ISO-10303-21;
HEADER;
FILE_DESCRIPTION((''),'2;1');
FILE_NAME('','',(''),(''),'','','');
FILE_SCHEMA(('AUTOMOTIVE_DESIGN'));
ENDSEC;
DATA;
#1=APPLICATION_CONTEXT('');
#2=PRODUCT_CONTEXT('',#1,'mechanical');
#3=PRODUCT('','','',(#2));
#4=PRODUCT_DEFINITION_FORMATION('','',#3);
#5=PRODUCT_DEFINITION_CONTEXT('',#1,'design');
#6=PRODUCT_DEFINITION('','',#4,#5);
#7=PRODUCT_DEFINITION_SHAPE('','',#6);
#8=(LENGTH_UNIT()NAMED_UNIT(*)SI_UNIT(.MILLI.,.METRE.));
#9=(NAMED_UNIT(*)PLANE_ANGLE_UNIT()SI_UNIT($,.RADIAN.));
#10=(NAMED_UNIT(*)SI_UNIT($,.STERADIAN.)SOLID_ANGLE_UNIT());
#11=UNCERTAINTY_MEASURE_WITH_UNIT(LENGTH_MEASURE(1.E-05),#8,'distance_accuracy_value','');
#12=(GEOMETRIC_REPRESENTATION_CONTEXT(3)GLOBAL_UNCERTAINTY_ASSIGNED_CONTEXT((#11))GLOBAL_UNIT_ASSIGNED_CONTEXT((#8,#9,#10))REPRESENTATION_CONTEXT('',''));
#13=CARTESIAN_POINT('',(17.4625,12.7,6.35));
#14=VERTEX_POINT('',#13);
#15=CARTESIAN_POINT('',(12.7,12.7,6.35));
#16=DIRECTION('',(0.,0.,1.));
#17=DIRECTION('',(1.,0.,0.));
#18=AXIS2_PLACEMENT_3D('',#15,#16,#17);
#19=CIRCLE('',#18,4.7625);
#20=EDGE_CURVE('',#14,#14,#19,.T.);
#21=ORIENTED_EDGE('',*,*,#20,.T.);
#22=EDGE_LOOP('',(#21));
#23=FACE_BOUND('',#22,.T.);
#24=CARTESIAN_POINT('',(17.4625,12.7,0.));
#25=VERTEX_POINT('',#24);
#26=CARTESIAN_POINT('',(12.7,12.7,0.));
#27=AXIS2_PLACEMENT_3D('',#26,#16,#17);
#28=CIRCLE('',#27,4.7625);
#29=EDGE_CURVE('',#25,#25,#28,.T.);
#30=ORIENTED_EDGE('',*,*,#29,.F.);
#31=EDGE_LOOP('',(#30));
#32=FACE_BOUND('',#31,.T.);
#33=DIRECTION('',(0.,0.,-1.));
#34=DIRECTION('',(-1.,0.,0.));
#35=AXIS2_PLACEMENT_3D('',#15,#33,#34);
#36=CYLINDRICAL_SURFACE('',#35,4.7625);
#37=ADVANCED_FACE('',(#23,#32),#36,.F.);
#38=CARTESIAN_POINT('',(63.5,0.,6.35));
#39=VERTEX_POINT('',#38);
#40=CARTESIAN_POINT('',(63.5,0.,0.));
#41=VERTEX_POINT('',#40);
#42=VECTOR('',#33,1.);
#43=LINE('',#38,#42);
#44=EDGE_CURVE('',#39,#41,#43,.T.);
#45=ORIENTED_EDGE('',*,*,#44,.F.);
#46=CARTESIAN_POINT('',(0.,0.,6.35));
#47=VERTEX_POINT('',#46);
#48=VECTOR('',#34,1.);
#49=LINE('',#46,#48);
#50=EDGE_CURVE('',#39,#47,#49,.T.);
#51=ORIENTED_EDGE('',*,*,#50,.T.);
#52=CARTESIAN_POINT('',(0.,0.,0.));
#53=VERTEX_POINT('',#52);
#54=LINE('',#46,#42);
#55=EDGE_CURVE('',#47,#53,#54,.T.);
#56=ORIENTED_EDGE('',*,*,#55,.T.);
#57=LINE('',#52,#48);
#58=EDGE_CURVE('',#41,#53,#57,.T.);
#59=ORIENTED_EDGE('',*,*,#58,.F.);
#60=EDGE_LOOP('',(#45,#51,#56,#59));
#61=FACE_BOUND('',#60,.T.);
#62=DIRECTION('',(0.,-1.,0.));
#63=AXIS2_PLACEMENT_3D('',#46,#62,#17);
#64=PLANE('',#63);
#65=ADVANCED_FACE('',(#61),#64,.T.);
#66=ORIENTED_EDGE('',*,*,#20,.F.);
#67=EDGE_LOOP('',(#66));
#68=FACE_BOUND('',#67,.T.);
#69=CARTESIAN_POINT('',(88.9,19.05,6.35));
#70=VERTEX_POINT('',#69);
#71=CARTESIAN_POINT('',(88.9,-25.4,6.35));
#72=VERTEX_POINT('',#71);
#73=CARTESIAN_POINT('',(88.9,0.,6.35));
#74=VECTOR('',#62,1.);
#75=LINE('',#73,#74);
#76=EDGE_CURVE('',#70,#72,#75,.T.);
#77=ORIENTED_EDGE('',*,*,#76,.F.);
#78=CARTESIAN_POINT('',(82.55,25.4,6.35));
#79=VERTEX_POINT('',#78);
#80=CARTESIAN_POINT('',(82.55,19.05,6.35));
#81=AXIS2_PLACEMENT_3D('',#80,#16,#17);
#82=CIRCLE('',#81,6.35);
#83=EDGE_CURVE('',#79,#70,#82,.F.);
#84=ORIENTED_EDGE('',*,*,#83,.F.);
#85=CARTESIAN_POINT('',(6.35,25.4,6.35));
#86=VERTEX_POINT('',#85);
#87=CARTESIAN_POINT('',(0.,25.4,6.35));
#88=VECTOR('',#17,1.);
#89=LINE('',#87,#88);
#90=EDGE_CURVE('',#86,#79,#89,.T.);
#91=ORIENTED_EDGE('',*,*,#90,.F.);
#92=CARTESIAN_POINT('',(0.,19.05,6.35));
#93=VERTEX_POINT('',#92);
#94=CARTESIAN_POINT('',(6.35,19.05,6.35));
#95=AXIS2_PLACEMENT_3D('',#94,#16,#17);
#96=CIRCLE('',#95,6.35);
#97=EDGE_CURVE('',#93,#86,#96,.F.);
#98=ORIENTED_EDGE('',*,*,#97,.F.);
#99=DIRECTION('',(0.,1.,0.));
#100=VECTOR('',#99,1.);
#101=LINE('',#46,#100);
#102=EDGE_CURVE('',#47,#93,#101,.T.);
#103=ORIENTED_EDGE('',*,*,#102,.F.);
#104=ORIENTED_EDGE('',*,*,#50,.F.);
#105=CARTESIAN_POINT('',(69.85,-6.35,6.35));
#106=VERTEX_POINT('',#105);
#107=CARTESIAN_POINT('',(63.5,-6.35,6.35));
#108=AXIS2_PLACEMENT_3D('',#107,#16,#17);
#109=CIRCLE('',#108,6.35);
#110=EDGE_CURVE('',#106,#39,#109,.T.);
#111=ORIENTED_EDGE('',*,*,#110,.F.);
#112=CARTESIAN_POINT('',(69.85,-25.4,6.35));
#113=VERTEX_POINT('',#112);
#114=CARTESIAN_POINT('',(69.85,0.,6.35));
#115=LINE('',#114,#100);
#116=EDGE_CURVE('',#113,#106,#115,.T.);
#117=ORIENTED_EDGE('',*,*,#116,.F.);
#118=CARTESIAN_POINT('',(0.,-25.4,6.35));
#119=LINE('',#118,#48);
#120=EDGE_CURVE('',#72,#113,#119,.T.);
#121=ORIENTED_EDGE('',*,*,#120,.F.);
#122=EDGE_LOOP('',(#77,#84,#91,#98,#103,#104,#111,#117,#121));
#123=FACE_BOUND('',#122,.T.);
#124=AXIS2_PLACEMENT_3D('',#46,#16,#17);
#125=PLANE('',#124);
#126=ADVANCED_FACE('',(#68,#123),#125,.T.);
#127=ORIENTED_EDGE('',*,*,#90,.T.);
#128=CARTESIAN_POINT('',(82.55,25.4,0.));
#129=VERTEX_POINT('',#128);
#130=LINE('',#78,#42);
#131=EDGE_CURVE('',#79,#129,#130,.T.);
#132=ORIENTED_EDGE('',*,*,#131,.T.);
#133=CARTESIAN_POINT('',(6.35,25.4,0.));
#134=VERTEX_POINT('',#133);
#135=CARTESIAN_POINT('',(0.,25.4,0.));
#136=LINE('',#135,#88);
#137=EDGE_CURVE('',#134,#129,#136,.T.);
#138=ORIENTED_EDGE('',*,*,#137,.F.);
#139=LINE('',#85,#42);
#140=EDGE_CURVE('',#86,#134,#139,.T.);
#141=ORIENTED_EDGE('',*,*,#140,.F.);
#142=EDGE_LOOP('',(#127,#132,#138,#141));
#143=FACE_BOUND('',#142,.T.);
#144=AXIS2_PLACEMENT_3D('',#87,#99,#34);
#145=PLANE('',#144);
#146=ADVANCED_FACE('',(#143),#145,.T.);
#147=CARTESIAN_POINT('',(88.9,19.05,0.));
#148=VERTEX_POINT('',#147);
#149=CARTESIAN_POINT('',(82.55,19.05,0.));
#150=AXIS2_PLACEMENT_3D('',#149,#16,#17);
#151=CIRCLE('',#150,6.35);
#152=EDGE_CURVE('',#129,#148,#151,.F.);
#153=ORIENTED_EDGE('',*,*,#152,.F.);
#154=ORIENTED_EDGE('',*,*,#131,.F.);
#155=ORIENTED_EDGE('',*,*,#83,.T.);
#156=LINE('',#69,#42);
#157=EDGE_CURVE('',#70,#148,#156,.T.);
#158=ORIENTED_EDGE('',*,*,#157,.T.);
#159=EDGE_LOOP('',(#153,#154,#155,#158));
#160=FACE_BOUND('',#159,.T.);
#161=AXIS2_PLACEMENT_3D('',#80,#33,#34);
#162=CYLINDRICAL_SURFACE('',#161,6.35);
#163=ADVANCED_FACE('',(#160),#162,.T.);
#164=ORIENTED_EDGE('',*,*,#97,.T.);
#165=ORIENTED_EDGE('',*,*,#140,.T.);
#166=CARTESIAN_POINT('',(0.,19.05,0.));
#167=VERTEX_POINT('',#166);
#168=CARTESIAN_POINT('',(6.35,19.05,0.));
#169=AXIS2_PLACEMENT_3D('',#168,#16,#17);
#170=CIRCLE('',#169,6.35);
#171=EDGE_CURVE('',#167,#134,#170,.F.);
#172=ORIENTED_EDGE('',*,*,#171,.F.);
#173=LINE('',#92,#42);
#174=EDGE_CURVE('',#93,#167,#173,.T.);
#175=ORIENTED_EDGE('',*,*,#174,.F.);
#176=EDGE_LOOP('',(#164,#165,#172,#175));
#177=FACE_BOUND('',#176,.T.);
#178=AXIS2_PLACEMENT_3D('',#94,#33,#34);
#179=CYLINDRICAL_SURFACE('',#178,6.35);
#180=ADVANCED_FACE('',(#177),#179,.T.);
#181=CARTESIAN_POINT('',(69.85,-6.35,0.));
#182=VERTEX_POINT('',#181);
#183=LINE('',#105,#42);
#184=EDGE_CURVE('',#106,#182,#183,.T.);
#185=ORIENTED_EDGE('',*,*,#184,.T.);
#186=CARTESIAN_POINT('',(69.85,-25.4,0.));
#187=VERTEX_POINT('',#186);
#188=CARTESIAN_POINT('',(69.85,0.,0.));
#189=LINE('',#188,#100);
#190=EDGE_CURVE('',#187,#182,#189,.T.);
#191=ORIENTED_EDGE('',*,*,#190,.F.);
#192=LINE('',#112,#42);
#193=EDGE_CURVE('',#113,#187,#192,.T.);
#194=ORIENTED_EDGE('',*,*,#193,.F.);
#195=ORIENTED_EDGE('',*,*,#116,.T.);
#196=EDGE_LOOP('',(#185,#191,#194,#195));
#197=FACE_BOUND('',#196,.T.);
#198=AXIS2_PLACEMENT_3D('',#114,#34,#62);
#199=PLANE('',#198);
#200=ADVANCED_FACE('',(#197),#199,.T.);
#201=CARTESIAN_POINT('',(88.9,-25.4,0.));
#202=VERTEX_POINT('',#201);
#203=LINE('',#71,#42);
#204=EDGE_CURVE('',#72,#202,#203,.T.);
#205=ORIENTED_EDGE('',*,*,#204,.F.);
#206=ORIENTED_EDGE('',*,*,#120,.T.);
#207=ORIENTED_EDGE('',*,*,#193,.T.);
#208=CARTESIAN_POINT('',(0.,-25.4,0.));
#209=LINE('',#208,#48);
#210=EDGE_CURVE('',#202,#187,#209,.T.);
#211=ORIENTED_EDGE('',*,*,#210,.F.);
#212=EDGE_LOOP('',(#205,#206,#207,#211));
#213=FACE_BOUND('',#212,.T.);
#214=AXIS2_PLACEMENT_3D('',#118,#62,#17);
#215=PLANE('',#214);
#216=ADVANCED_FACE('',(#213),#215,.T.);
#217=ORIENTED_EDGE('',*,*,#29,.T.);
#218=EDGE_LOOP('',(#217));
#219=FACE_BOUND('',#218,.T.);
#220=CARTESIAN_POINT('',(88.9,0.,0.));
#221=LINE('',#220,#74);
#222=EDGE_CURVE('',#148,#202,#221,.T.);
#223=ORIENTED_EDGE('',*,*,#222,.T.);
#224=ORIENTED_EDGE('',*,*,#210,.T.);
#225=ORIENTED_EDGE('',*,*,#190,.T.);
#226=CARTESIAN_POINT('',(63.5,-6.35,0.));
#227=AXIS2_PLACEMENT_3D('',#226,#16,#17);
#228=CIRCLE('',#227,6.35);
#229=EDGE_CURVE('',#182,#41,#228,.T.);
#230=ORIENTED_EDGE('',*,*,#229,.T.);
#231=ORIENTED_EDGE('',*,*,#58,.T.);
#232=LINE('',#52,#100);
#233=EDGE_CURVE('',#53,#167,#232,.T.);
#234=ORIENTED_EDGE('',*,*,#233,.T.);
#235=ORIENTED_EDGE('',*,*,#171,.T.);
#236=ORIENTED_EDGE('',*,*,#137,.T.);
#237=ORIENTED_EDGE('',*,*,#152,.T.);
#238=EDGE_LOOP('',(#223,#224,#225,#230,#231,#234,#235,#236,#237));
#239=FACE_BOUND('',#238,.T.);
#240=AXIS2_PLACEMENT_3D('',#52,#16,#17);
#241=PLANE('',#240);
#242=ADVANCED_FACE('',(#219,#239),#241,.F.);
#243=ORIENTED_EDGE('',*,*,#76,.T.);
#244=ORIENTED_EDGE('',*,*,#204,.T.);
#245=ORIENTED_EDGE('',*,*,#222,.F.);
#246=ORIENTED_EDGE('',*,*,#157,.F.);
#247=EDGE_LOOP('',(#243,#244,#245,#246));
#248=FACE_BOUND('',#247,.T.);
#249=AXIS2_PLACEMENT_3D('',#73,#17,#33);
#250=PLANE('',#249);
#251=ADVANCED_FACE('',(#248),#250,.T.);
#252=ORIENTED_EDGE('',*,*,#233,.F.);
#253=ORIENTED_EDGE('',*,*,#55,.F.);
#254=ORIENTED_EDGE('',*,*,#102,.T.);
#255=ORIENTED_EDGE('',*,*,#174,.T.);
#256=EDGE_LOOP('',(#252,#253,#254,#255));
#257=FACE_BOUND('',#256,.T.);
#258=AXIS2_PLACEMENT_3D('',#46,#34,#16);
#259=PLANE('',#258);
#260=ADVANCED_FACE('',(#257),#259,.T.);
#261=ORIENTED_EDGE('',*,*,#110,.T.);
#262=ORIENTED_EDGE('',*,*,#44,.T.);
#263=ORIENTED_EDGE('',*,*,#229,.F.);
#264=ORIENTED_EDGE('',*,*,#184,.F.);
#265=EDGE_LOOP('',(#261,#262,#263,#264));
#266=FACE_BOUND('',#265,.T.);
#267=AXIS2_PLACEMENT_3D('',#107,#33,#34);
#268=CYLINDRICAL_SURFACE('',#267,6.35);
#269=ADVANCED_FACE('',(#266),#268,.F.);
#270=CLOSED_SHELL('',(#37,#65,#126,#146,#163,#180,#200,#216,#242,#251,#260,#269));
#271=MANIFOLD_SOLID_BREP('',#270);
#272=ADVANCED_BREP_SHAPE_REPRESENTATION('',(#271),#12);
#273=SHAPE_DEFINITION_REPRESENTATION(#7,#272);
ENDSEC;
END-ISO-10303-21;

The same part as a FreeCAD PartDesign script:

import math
import FreeCAD as App
import Part
import Sketcher
from FreeCAD import Vector
Q = App.Units.Quantity

doc = App.newDocument("Part")
body = doc.addObject("PartDesign::Body", "Body")

# Sketch on XY plane
sketch1 = body.newObject("Sketcher::SketchObject", "Sketch")
sketch1.AttachmentSupport = (doc.getObject("XY_Plane"), [""])
sketch1.MapMode = "FlatFace"
sketch1.addGeometry([
    Part.LineSegment(Vector(0, 19.05, 0), Vector(0, 0, 0)),  # 0
    Part.LineSegment(Vector(0, 0, 0), Vector(63.5, 0, 0)),  # 1
    Part.ArcOfCircle(Part.Circle(Vector(63.5, -6.35, 0), Vector(0, 0, 1), 6.35), math.radians(0), math.radians(90)),  # 2
    Part.LineSegment(Vector(69.85, -6.35, 0), Vector(69.85, -25.4, 0)),  # 3
    Part.LineSegment(Vector(69.85, -25.4, 0), Vector(88.9, -25.4, 0)),  # 4
    Part.LineSegment(Vector(88.9, -25.4, 0), Vector(88.9, 19.05, 0)),  # 5
    Part.ArcOfCircle(Part.Circle(Vector(82.55, 19.05, 0), Vector(0, 0, 1), 6.35), math.radians(0), math.radians(90)),  # 6
    Part.LineSegment(Vector(82.55, 25.4, 0), Vector(6.35, 25.4, 0)),  # 7
    Part.ArcOfCircle(Part.Circle(Vector(6.35, 19.05, 0), Vector(0, 0, 1), 6.35), math.radians(90), math.radians(180)),  # 8
    Part.Circle(Vector(12.7, 12.7, 0), Vector(0, 0, 1), 4.7625),  # 9
], False)
sketch1.addConstraint([
    Sketcher.Constraint("Coincident", 0, 2, 1, 1),
    Sketcher.Constraint("Tangent", 1, 2, 2, 2),
    Sketcher.Constraint("Tangent", 2, 1, 3, 1),
    Sketcher.Constraint("Coincident", 3, 2, 4, 1),
    Sketcher.Constraint("Coincident", 4, 2, 5, 1),
    Sketcher.Constraint("Tangent", 5, 2, 6, 1),
    Sketcher.Constraint("Tangent", 6, 2, 7, 1),
    Sketcher.Constraint("Tangent", 7, 2, 8, 1),
    Sketcher.Constraint("Tangent", 8, 2, 0, 1),
    Sketcher.Constraint("Vertical", 0),
    Sketcher.Constraint("Horizontal", 1),
    Sketcher.Constraint("Vertical", 3),
    Sketcher.Constraint("Horizontal", 4),
    Sketcher.Constraint("Vertical", 5),
    Sketcher.Constraint("Horizontal", 7),
    Sketcher.Constraint("Coincident", 0, 2, -1, 1),
    Sketcher.Constraint("Equal", 2, 6),
    Sketcher.Constraint("Equal", 6, 8),
    Sketcher.Constraint("Equal", 4, 0),
    Sketcher.Constraint("Equal", 0, 3),
    Sketcher.Constraint("DistanceX", 7, 2, 7, 1, Q("3 in")),
    Sketcher.Constraint("Radius", 2, Q("0.25 in")),
    Sketcher.Constraint("Diameter", 9, Q("0.375 in")),
    Sketcher.Constraint("DistanceX", 1, 1, 1, 2, Q("2.5 in")),
    Sketcher.Constraint("DistanceX", 9, 3, 2, 3, Q("2 in")),
    Sketcher.Constraint("DistanceY", -1, 1, 9, 3, Q("0.5 in")),
])
pad1 = body.newObject("PartDesign::Pad", "Pad")
pad1.Profile = sketch1
pad1.Length = Q("0.25 in")

doc.recompute()
